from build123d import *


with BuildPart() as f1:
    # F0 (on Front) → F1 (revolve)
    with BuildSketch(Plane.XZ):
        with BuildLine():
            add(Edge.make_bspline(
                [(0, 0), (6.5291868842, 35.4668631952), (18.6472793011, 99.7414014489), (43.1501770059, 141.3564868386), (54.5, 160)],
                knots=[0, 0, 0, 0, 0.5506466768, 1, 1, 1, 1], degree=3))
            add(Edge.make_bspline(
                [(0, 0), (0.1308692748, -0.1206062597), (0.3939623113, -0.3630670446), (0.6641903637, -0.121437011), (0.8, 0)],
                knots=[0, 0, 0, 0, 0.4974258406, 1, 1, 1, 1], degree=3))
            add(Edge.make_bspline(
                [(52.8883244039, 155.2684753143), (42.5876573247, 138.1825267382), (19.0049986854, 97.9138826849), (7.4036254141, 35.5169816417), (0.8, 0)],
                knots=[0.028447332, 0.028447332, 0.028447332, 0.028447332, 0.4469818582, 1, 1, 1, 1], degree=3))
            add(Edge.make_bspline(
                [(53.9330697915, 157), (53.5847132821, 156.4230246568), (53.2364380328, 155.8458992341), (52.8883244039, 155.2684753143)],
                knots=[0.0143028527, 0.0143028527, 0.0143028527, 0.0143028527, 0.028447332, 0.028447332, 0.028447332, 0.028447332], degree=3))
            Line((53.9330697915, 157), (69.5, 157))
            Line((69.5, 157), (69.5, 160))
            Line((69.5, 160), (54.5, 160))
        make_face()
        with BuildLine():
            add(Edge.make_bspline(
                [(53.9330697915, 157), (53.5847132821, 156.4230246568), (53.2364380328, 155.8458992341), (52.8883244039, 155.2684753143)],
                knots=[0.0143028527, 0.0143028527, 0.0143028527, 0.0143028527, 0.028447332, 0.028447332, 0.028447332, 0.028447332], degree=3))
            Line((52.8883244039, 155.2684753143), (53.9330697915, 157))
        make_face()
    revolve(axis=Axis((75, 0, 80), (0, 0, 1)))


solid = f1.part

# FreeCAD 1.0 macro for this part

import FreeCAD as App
import Part
import Sketcher
Q = App.Units.Quantity

doc = App.newDocument("Part")
body = doc.addObject("PartDesign::Body", "Body")

# Sketch on XZ plane
sketch1 = body.newObject("Sketcher::SketchObject", "Sketch")
sketch1.AttachmentSupport = (doc.getObject("XZ_Plane"), [""])
sketch1.MapMode = "FlatFace"
sketch1.addGeometry(Part.BSplineCurve([App.Vector(0, 0, 0), App.Vector(6.529187, 35.466863, 0), App.Vector(18.647279, 99.741401, 0), App.Vector(43.150177, 141.356487, 0), App.Vector(54.5, 160, 0)], [4, 1, 4], [0, 0.550646677, 1], False, 3, [1, 1, 1, 1, 1], False), False)
sketch1.addGeometry(Part.BSplineCurve([App.Vector(0, 0, 0), App.Vector(0.130869, -0.120606, 0), App.Vector(0.393962, -0.363067, 0), App.Vector(0.66419, -0.121437, 0), App.Vector(0.8, 0, 0)], [4, 1, 4], [0, 0.497425841, 1], False, 3, [1, 1, 1, 1, 1], False), False)
sketch1.addGeometry(Part.BSplineCurve([App.Vector(52.888324, 155.268475, 0), App.Vector(42.587657, 138.182527, 0), App.Vector(19.004999, 97.913883, 0), App.Vector(7.403625, 35.516982, 0), App.Vector(0.8, 0, 0)], [4, 1, 4], [0.028447332, 0.446981858, 1], False, 3, [1, 1, 1, 1, 1], False), False)
sketch1.addGeometry(Part.LineSegment(App.Vector(52.888324, 155.268475, 0), App.Vector(53.93307, 157, 0)), False)
sketch1.addGeometry(Part.LineSegment(App.Vector(53.93307, 157, 0), App.Vector(69.5, 157, 0)), False)
sketch1.addGeometry(Part.LineSegment(App.Vector(69.5, 157, 0), App.Vector(69.5, 160, 0)), False)
sketch1.addGeometry(Part.LineSegment(App.Vector(69.5, 160, 0), App.Vector(54.5, 160, 0)), False)
sketch1.addGeometry(Part.LineSegment(App.Vector(75, 0, 0), App.Vector(75, 160, 0)), True)  # axis
sketch1.addConstraint(Sketcher.Constraint("Block", 0))
sketch1.addConstraint(Sketcher.Constraint("Block", 1))
sketch1.addConstraint(Sketcher.Constraint("Block", 2))
sketch1.addConstraint(Sketcher.Constraint("Coincident", 2, 1, 3, 1))
sketch1.addConstraint(Sketcher.Constraint("Coincident", 3, 2, 4, 1))
sketch1.addConstraint(Sketcher.Constraint("Coincident", 4, 2, 5, 1))
sketch1.addConstraint(Sketcher.Constraint("Coincident", 5, 2, 6, 1))
sketch1.addConstraint(Sketcher.Constraint("Coincident", 6, 2, 0, 2))
sketch1.addConstraint(Sketcher.Constraint("Horizontal", 4))
sketch1.addConstraint(Sketcher.Constraint("Vertical", 5))
sketch1.addConstraint(Sketcher.Constraint("Horizontal", 6))
sketch1.addConstraint(Sketcher.Constraint("Vertical", 7))
sketch1.addConstraint(Sketcher.Constraint("PointOnObject", 7, 1, -1))
sketch1.addConstraint(Sketcher.Constraint("Horizontal", 6, 2, 7, 2))
sketch1.addConstraint(Sketcher.Constraint("DistanceX", 6, 2, 6, 1, Q("15 mm")))
sketch1.addConstraint(Sketcher.Constraint("DistanceY", 5, 1, 5, 2, Q("3 mm")))
sketch1.addConstraint(Sketcher.Constraint("DistanceX", -1, 1, 7, 1, Q("75 mm")))
sketch1.addConstraint(Sketcher.Constraint("DistanceX", 4, 1, 4, 2, Q("15.56693 mm")))
revolution = body.newObject("PartDesign::Revolution", "Revolution")
revolution.Profile = sketch1
revolution.ReferenceAxis = (sketch1, ["Axis0"])
revolution.Angle = 360

doc.recompute()
